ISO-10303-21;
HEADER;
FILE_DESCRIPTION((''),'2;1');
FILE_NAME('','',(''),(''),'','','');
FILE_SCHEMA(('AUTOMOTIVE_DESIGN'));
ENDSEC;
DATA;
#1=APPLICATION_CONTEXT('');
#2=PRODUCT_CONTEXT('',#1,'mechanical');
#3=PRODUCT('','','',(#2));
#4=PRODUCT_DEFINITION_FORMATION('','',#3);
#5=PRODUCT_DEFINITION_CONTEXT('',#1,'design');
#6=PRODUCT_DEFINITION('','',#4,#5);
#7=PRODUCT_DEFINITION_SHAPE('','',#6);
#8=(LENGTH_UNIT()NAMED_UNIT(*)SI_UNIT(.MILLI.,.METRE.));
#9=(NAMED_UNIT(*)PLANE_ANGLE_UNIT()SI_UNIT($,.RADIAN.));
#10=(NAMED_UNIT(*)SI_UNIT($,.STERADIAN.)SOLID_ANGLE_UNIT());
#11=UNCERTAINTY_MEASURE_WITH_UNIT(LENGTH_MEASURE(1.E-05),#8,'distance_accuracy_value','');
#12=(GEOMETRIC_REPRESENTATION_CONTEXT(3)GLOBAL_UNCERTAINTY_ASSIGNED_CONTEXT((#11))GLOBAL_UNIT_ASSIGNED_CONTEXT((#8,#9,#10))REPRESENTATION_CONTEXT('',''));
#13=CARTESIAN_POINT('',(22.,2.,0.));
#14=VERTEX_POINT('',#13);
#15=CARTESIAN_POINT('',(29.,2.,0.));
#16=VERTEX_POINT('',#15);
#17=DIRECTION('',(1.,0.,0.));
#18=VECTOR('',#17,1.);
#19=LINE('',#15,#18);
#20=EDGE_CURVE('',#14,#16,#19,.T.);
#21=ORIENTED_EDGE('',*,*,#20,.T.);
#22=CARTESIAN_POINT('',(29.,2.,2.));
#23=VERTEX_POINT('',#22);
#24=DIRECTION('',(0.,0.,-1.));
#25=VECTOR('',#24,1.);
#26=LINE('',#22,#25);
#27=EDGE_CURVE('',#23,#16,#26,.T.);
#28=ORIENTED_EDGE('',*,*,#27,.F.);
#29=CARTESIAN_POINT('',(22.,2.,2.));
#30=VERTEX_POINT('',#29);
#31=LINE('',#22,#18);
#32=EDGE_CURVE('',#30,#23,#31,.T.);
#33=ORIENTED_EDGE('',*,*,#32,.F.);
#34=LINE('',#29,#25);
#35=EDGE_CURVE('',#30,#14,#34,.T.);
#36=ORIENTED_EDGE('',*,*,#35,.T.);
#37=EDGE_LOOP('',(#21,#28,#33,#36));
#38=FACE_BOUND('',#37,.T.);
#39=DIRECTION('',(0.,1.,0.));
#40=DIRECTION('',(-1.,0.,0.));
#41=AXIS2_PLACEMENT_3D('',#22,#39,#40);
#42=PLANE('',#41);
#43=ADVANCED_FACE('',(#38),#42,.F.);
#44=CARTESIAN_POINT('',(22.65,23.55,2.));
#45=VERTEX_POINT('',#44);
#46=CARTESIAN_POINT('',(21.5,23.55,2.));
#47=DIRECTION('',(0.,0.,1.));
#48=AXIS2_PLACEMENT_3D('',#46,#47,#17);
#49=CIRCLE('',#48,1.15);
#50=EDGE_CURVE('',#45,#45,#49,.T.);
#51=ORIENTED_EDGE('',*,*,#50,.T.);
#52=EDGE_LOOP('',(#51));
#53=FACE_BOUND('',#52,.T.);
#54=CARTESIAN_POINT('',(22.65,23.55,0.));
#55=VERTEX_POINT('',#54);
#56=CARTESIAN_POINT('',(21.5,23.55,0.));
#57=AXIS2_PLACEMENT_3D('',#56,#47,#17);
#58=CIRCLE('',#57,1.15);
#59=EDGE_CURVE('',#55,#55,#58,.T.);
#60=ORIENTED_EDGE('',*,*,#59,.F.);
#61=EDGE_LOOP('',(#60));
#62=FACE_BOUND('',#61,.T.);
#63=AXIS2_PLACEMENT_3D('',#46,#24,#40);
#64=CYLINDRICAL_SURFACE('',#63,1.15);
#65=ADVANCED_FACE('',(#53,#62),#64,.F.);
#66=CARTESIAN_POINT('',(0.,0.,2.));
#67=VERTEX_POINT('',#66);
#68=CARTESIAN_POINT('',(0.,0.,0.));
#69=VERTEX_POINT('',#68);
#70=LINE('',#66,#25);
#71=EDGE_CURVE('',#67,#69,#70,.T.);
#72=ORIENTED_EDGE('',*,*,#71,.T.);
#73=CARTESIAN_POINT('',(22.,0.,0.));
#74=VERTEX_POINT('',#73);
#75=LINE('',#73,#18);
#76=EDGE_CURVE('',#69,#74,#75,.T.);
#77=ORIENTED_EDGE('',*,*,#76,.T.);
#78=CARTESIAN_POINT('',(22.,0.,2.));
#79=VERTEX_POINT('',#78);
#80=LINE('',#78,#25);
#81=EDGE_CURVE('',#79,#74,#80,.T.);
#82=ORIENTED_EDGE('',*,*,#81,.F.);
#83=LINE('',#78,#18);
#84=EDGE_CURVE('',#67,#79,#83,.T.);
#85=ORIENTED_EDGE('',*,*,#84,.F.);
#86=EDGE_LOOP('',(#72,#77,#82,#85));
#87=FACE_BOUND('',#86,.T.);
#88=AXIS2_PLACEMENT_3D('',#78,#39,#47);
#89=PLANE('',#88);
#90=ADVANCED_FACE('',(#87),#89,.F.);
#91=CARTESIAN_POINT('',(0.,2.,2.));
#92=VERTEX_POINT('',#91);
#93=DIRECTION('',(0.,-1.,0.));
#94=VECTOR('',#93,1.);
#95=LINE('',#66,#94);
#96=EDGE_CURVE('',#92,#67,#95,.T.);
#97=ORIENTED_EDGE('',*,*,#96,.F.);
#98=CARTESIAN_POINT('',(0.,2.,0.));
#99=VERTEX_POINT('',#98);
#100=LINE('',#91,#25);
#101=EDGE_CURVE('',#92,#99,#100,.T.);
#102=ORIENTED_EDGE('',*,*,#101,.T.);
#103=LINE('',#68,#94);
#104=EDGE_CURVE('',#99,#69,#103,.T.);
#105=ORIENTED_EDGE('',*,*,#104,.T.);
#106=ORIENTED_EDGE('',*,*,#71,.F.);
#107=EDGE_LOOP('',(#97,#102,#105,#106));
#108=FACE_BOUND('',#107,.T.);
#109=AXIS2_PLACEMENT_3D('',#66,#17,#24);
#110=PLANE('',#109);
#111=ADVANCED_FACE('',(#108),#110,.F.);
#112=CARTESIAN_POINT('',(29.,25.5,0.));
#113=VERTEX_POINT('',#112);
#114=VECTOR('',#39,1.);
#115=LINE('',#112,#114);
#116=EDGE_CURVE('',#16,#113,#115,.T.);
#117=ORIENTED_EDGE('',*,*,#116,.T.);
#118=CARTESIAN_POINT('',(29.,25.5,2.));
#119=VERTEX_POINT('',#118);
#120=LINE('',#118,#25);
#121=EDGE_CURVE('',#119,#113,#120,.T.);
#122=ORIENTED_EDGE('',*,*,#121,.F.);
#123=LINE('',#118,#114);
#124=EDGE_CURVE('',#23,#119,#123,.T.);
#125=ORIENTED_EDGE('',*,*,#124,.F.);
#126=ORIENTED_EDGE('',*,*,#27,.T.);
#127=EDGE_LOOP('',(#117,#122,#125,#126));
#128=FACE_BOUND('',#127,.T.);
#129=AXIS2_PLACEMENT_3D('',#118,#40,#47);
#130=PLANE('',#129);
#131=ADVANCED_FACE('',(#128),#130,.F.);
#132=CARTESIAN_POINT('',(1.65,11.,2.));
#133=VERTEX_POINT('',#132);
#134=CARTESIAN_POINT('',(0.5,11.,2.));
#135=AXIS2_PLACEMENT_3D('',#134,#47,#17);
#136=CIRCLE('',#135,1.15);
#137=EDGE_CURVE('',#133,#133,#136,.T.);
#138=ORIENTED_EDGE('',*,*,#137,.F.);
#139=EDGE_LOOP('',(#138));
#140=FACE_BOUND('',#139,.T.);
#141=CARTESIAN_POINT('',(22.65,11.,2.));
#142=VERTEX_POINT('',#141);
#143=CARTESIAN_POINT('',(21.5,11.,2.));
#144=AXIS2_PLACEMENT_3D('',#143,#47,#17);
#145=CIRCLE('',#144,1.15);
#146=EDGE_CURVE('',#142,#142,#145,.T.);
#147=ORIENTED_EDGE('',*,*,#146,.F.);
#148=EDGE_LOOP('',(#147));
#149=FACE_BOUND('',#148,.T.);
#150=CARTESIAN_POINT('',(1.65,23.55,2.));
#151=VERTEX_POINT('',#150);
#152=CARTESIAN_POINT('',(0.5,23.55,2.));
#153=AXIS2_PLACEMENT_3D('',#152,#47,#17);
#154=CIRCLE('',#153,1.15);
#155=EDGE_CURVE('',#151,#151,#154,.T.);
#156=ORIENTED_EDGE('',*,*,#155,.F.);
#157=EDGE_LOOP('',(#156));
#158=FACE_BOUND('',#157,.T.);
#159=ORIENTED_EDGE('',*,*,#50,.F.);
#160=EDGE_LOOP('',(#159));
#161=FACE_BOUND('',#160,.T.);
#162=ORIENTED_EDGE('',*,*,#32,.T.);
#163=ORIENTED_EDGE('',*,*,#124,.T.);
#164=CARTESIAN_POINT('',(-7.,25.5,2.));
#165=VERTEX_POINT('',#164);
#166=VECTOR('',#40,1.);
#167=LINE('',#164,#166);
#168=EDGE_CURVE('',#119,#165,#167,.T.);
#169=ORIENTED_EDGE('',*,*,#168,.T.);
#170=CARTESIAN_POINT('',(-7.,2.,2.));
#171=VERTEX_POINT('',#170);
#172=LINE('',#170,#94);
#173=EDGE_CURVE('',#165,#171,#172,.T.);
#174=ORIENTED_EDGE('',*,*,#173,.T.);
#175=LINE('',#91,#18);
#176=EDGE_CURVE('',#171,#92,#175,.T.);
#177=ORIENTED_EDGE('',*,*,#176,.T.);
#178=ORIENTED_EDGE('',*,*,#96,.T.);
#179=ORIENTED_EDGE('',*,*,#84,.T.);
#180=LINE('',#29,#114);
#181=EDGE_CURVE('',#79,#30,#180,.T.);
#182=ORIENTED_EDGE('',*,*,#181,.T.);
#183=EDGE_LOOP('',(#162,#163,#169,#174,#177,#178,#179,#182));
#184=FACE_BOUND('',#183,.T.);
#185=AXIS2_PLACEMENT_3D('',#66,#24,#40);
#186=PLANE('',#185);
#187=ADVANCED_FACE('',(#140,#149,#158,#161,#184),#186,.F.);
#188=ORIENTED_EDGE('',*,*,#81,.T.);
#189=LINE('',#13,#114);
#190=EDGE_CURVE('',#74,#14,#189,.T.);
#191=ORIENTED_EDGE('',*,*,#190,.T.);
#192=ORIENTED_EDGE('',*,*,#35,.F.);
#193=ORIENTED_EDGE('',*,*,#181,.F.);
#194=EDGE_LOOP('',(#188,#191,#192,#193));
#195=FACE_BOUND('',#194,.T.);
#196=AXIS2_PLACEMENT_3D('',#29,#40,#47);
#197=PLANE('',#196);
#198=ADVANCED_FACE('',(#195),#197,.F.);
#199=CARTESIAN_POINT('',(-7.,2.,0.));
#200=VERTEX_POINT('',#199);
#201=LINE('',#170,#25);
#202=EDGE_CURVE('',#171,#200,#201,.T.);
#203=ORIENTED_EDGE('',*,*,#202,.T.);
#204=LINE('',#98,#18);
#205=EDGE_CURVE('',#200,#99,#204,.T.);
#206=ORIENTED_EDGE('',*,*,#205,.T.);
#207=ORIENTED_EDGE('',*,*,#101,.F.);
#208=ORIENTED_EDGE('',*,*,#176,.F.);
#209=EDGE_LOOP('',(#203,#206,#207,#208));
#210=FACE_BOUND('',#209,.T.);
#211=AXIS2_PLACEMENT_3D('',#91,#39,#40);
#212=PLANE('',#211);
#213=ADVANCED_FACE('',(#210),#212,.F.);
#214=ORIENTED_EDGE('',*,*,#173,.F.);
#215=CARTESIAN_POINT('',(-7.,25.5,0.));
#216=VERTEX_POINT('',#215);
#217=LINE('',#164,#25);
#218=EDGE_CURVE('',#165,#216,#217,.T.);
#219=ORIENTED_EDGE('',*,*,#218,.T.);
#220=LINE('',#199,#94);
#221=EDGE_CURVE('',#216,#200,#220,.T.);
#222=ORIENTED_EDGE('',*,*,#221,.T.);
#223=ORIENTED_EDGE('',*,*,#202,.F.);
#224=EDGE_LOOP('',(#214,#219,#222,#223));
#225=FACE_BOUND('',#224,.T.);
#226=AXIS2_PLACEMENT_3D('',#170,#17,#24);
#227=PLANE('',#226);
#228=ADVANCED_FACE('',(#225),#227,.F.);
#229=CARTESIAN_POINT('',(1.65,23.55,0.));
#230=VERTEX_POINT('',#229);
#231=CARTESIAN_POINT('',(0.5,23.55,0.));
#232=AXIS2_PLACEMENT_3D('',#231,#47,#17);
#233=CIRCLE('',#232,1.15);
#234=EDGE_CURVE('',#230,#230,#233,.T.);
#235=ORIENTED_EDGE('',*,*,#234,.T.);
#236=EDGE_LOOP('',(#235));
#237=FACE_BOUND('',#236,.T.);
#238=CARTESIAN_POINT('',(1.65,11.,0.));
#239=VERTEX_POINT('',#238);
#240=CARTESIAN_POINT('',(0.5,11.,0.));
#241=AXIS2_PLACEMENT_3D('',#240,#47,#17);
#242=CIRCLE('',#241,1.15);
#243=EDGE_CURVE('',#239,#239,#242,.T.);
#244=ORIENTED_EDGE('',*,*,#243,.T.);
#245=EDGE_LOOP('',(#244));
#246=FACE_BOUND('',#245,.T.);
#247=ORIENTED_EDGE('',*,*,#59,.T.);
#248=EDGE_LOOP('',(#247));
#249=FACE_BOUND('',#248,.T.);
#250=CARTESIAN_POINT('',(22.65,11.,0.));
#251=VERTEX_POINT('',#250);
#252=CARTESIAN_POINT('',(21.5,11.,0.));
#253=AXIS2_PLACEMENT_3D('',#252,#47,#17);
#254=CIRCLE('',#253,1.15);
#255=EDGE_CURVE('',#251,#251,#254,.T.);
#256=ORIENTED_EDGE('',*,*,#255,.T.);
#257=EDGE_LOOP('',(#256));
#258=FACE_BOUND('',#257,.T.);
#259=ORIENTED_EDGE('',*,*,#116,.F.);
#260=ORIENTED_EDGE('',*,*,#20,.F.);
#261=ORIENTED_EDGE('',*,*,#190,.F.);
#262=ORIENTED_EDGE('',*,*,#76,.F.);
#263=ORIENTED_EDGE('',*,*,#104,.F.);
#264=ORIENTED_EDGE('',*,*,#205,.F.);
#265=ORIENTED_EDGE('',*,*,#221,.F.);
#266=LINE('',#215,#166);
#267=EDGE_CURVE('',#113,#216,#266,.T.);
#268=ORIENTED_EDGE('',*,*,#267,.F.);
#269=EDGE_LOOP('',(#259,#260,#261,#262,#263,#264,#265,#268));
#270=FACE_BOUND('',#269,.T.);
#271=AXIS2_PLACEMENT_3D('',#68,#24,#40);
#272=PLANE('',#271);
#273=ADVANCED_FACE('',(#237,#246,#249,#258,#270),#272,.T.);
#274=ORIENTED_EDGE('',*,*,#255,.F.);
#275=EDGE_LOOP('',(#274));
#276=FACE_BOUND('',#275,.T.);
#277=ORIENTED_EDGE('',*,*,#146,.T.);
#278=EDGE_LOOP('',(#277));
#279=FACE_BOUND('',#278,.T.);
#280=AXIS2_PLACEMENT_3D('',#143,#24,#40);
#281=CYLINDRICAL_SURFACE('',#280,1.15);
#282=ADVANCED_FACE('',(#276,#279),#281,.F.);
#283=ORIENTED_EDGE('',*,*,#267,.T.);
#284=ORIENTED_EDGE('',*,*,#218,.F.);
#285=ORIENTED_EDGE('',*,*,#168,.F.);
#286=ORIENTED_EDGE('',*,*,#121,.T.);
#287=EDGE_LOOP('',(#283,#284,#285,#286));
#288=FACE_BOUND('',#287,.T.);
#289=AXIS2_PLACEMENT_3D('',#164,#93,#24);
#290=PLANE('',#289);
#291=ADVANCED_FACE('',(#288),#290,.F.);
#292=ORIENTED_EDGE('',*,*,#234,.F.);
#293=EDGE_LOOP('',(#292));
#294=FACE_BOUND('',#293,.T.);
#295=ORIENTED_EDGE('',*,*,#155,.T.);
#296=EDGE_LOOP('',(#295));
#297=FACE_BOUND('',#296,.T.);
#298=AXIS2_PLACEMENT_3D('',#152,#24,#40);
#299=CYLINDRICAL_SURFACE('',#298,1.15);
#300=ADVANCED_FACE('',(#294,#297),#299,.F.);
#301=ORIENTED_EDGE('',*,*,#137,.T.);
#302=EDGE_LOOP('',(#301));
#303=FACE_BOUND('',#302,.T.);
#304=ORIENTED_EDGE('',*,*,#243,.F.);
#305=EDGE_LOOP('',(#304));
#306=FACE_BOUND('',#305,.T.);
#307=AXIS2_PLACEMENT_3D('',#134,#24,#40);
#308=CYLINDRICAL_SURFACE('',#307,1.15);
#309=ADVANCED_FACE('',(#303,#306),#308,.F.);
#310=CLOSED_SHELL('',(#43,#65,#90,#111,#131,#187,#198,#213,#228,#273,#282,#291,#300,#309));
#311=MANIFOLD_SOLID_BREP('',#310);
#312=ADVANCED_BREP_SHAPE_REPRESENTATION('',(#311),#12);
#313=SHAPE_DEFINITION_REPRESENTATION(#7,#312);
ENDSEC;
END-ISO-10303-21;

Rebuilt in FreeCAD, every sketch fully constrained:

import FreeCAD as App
import Part
import Sketcher
from FreeCAD import Vector
Q = App.Units.Quantity

doc = App.newDocument("Part")
body = doc.addObject("PartDesign::Body", "Body")

# Sketch on XY plane
sketch1 = body.newObject("Sketcher::SketchObject", "Sketch")
sketch1.AttachmentSupport = (doc.getObject("XY_Plane"), [""])
sketch1.MapMode = "FlatFace"
sketch1.addGeometry(Part.LineSegment(Vector(-7, 25.5, 0), Vector(-7, 2, 0)), False)
sketch1.addGeometry(Part.LineSegment(Vector(-7, 2, 0), Vector(0, 2, 0)), False)
sketch1.addGeometry(Part.LineSegment(Vector(0, 2, 0), Vector(0, 0, 0)), False)
sketch1.addGeometry(Part.LineSegment(Vector(0, 0, 0), Vector(22, 0, 0)), False)
sketch1.addGeometry(Part.LineSegment(Vector(22, 0, 0), Vector(22, 2, 0)), False)
sketch1.addGeometry(Part.LineSegment(Vector(22, 2, 0), Vector(29, 2, 0)), False)
sketch1.addGeometry(Part.LineSegment(Vector(29, 2, 0), Vector(29, 25.5, 0)), False)
sketch1.addGeometry(Part.LineSegment(Vector(29, 25.5, 0), Vector(-7, 25.5, 0)), False)
sketch1.addGeometry(Part.Circle(Vector(21.5, 11, 0), Vector(0, 0, 1), 1.1), False)
sketch1.addGeometry(Part.Circle(Vector(0.5, 11, 0), Vector(0, 0, 1), 1.1), False)
sketch1.addGeometry(Part.Circle(Vector(21.5, 23.6, 0), Vector(0, 0, 1), 1.1), False)
sketch1.addGeometry(Part.Circle(Vector(0.5, 23.6, 0), Vector(0, 0, 1), 1.1), False)
sketch1.addConstraint(Sketcher.Constraint("Coincident", 0, 2, 1, 1))
sketch1.addConstraint(Sketcher.Constraint("Coincident", 1, 2, 2, 1))
sketch1.addConstraint(Sketcher.Constraint("Coincident", 2, 2, 3, 1))
sketch1.addConstraint(Sketcher.Constraint("Coincident", 3, 2, 4, 1))
sketch1.addConstraint(Sketcher.Constraint("Coincident", 4, 2, 5, 1))
sketch1.addConstraint(Sketcher.Constraint("Coincident", 5, 2, 6, 1))
sketch1.addConstraint(Sketcher.Constraint("Coincident", 6, 2, 7, 1))
sketch1.addConstraint(Sketcher.Constraint("Coincident", 7, 2, 0, 1))
sketch1.addConstraint(Sketcher.Constraint("Vertical", 0))
sketch1.addConstraint(Sketcher.Constraint("Horizontal", 1))
sketch1.addConstraint(Sketcher.Constraint("Vertical", 2))
sketch1.addConstraint(Sketcher.Constraint("Horizontal", 3))
sketch1.addConstraint(Sketcher.Constraint("Vertical", 4))
sketch1.addConstraint(Sketcher.Constraint("Horizontal", 5))
sketch1.addConstraint(Sketcher.Constraint("Vertical", 6))
sketch1.addConstraint(Sketcher.Constraint("Horizontal", 7))
sketch1.addConstraint(Sketcher.Constraint("Coincident", 2, 2, -1, 1))
sketch1.addConstraint(Sketcher.Constraint("Equal", 8, 9))
sketch1.addConstraint(Sketcher.Constraint("Equal", 9, 10))
sketch1.addConstraint(Sketcher.Constraint("Equal", 10, 11))
sketch1.addConstraint(Sketcher.Constraint("Horizontal", 8, 3, 9, 3))
sketch1.addConstraint(Sketcher.Constraint("Horizontal", 10, 3, 11, 3))
sketch1.addConstraint(Sketcher.Constraint("Horizontal", 1, 2, 4, 2))
sketch1.addConstraint(Sketcher.Constraint("Vertical", 8, 3, 10, 3))
sketch1.addConstraint(Sketcher.Constraint("Vertical", 9, 3, 11, 3))
sketch1.addConstraint(Sketcher.Constraint("Equal", 1, 5))
sketch1.addConstraint(Sketcher.Constraint("Diameter", 8, Q("2.3 mm")))
sketch1.addConstraint(Sketcher.Constraint("DistanceX", 1, 1, 1, 2, Q("7 mm")))
sketch1.addConstraint(Sketcher.Constraint("DistanceX", 3, 1, 3, 2, Q("22 mm")))
sketch1.addConstraint(Sketcher.Constraint("DistanceY", 2, 2, 2, 1, Q("2 mm")))
sketch1.addConstraint(Sketcher.Constraint("DistanceY", 0, 2, 0, 1, Q("23.5 mm")))
sketch1.addConstraint(Sketcher.Constraint("DistanceY", -1, 1, 8, 3, Q("11 mm")))
sketch1.addConstraint(Sketcher.Constraint("DistanceX", 9, 3, 8, 3, Q("21 mm")))
sketch1.addConstraint(Sketcher.Constraint("DistanceX", -1, 1, 8, 3, Q("21.5 mm")))
sketch1.addConstraint(Sketcher.Constraint("DistanceY", -1, 1, 10, 3, Q("23.55 mm")))
pad1 = body.newObject("PartDesign::Pad", "Pad")
pad1.Profile = sketch1
pad1.Length = 2

doc.recompute()
